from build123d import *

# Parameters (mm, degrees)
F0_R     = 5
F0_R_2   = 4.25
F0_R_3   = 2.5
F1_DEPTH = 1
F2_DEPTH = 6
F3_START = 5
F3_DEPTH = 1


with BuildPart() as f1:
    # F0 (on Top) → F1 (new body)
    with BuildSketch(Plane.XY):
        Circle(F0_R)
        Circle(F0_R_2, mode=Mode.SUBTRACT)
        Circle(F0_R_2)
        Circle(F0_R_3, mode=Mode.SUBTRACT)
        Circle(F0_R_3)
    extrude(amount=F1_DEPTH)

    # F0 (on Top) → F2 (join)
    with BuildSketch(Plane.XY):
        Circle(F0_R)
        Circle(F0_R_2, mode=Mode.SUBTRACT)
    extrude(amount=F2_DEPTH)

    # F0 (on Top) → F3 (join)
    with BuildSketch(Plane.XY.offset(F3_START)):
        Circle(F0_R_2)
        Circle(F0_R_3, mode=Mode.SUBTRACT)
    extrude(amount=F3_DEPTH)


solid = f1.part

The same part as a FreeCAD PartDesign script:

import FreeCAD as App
import Part
import Sketcher
from FreeCAD import Vector

doc = App.newDocument("Part")
params = doc.addObject("Spreadsheet::Sheet", "Params")
for row, (alias, value) in enumerate([
    ("sketch1_diameter", "10 mm"),
    ("pad1_length", "1 mm"),
    ("sketch2_diameter", "10 mm"),
    ("sketch2_diameter2", "8.5 mm"),
    ("pad2_length", "6 mm"),
    ("sketch3_diameter", "5 mm"),
    ("sketch3_diameter2", "8.5 mm"),
    ("pad3_length", "1 mm"),
], start=1):
    params.set(f"A{row}", alias)
    params.set(f"B{row}", "=" + value)
    params.setAlias(f"B{row}", alias)

body = doc.addObject("PartDesign::Body", "Body")

sketch1 = body.newObject("Sketcher::SketchObject", "Sketch")
sketch1.AttachmentSupport = (doc.getObject("XY_Plane"), [""])
sketch1.MapMode = "FlatFace"
sketch1.addGeometry(Part.Circle(Vector(0, 0, 0), Vector(0, 0, 1), 5), False)
sketch1.addConstraint(Sketcher.Constraint("Coincident", 0, 3, -1, 1))
sketch1.addConstraint(Sketcher.Constraint("Diameter", 0, 10.0))
sketch1.setExpression("Constraints[1]", "Params.sketch1_diameter")
pad1 = body.newObject("PartDesign::Pad", "Pad")
pad1.Profile = sketch1
pad1.setExpression("Length", "Params.pad1_length")

sketch2 = body.newObject("Sketcher::SketchObject", "Sketch001")
sketch2.AttachmentSupport = (doc.getObject("XY_Plane"), [""])
sketch2.MapMode = "FlatFace"
sketch2.addGeometry(Part.Circle(Vector(0, 0, 0), Vector(0, 0, 1), 5), False)
sketch2.addGeometry(Part.Circle(Vector(0, 0, 0), Vector(0, 0, 1), 4.2), False)
sketch2.addConstraint(Sketcher.Constraint("Coincident", 0, 3, -1, 1))
sketch2.addConstraint(Sketcher.Constraint("Coincident", 1, 3, -1, 1))
sketch2.addConstraint(Sketcher.Constraint("Diameter", 0, 10.0))
sketch2.addConstraint(Sketcher.Constraint("Diameter", 1, 8.5))
sketch2.setExpression("Constraints[2]", "Params.sketch2_diameter")
sketch2.setExpression("Constraints[3]", "Params.sketch2_diameter2")
pad2 = body.newObject("PartDesign::Pad", "Pad001")
pad2.Profile = sketch2
pad2.setExpression("Length", "Params.pad2_length")

sketch3 = body.newObject("Sketcher::SketchObject", "Sketch002")
sketch3.AttachmentSupport = (doc.getObject("XY_Plane"), [""])
sketch3.MapMode = "FlatFace"
sketch3.AttachmentOffset = App.Placement(Vector(0, 0, 5), App.Rotation())
sketch3.addGeometry(Part.Circle(Vector(0, 0, 0), Vector(0, 0, 1), 4.2), False)
sketch3.addGeometry(Part.Circle(Vector(0, 0, 0), Vector(0, 0, 1), 2.5), False)
sketch3.addConstraint(Sketcher.Constraint("Coincident", 0, 3, -1, 1))
sketch3.addConstraint(Sketcher.Constraint("Coincident", 1, 3, -1, 1))
sketch3.addConstraint(Sketcher.Constraint("Diameter", 1, 5.0))
sketch3.addConstraint(Sketcher.Constraint("Diameter", 0, 8.5))
sketch3.setExpression("Constraints[2]", "Params.sketch3_diameter")
sketch3.setExpression("Constraints[3]", "Params.sketch3_diameter2")
pad3 = body.newObject("PartDesign::Pad", "Pad002")
pad3.Profile = sketch3
pad3.setExpression("Length", "Params.pad3_length")

doc.recompute()
